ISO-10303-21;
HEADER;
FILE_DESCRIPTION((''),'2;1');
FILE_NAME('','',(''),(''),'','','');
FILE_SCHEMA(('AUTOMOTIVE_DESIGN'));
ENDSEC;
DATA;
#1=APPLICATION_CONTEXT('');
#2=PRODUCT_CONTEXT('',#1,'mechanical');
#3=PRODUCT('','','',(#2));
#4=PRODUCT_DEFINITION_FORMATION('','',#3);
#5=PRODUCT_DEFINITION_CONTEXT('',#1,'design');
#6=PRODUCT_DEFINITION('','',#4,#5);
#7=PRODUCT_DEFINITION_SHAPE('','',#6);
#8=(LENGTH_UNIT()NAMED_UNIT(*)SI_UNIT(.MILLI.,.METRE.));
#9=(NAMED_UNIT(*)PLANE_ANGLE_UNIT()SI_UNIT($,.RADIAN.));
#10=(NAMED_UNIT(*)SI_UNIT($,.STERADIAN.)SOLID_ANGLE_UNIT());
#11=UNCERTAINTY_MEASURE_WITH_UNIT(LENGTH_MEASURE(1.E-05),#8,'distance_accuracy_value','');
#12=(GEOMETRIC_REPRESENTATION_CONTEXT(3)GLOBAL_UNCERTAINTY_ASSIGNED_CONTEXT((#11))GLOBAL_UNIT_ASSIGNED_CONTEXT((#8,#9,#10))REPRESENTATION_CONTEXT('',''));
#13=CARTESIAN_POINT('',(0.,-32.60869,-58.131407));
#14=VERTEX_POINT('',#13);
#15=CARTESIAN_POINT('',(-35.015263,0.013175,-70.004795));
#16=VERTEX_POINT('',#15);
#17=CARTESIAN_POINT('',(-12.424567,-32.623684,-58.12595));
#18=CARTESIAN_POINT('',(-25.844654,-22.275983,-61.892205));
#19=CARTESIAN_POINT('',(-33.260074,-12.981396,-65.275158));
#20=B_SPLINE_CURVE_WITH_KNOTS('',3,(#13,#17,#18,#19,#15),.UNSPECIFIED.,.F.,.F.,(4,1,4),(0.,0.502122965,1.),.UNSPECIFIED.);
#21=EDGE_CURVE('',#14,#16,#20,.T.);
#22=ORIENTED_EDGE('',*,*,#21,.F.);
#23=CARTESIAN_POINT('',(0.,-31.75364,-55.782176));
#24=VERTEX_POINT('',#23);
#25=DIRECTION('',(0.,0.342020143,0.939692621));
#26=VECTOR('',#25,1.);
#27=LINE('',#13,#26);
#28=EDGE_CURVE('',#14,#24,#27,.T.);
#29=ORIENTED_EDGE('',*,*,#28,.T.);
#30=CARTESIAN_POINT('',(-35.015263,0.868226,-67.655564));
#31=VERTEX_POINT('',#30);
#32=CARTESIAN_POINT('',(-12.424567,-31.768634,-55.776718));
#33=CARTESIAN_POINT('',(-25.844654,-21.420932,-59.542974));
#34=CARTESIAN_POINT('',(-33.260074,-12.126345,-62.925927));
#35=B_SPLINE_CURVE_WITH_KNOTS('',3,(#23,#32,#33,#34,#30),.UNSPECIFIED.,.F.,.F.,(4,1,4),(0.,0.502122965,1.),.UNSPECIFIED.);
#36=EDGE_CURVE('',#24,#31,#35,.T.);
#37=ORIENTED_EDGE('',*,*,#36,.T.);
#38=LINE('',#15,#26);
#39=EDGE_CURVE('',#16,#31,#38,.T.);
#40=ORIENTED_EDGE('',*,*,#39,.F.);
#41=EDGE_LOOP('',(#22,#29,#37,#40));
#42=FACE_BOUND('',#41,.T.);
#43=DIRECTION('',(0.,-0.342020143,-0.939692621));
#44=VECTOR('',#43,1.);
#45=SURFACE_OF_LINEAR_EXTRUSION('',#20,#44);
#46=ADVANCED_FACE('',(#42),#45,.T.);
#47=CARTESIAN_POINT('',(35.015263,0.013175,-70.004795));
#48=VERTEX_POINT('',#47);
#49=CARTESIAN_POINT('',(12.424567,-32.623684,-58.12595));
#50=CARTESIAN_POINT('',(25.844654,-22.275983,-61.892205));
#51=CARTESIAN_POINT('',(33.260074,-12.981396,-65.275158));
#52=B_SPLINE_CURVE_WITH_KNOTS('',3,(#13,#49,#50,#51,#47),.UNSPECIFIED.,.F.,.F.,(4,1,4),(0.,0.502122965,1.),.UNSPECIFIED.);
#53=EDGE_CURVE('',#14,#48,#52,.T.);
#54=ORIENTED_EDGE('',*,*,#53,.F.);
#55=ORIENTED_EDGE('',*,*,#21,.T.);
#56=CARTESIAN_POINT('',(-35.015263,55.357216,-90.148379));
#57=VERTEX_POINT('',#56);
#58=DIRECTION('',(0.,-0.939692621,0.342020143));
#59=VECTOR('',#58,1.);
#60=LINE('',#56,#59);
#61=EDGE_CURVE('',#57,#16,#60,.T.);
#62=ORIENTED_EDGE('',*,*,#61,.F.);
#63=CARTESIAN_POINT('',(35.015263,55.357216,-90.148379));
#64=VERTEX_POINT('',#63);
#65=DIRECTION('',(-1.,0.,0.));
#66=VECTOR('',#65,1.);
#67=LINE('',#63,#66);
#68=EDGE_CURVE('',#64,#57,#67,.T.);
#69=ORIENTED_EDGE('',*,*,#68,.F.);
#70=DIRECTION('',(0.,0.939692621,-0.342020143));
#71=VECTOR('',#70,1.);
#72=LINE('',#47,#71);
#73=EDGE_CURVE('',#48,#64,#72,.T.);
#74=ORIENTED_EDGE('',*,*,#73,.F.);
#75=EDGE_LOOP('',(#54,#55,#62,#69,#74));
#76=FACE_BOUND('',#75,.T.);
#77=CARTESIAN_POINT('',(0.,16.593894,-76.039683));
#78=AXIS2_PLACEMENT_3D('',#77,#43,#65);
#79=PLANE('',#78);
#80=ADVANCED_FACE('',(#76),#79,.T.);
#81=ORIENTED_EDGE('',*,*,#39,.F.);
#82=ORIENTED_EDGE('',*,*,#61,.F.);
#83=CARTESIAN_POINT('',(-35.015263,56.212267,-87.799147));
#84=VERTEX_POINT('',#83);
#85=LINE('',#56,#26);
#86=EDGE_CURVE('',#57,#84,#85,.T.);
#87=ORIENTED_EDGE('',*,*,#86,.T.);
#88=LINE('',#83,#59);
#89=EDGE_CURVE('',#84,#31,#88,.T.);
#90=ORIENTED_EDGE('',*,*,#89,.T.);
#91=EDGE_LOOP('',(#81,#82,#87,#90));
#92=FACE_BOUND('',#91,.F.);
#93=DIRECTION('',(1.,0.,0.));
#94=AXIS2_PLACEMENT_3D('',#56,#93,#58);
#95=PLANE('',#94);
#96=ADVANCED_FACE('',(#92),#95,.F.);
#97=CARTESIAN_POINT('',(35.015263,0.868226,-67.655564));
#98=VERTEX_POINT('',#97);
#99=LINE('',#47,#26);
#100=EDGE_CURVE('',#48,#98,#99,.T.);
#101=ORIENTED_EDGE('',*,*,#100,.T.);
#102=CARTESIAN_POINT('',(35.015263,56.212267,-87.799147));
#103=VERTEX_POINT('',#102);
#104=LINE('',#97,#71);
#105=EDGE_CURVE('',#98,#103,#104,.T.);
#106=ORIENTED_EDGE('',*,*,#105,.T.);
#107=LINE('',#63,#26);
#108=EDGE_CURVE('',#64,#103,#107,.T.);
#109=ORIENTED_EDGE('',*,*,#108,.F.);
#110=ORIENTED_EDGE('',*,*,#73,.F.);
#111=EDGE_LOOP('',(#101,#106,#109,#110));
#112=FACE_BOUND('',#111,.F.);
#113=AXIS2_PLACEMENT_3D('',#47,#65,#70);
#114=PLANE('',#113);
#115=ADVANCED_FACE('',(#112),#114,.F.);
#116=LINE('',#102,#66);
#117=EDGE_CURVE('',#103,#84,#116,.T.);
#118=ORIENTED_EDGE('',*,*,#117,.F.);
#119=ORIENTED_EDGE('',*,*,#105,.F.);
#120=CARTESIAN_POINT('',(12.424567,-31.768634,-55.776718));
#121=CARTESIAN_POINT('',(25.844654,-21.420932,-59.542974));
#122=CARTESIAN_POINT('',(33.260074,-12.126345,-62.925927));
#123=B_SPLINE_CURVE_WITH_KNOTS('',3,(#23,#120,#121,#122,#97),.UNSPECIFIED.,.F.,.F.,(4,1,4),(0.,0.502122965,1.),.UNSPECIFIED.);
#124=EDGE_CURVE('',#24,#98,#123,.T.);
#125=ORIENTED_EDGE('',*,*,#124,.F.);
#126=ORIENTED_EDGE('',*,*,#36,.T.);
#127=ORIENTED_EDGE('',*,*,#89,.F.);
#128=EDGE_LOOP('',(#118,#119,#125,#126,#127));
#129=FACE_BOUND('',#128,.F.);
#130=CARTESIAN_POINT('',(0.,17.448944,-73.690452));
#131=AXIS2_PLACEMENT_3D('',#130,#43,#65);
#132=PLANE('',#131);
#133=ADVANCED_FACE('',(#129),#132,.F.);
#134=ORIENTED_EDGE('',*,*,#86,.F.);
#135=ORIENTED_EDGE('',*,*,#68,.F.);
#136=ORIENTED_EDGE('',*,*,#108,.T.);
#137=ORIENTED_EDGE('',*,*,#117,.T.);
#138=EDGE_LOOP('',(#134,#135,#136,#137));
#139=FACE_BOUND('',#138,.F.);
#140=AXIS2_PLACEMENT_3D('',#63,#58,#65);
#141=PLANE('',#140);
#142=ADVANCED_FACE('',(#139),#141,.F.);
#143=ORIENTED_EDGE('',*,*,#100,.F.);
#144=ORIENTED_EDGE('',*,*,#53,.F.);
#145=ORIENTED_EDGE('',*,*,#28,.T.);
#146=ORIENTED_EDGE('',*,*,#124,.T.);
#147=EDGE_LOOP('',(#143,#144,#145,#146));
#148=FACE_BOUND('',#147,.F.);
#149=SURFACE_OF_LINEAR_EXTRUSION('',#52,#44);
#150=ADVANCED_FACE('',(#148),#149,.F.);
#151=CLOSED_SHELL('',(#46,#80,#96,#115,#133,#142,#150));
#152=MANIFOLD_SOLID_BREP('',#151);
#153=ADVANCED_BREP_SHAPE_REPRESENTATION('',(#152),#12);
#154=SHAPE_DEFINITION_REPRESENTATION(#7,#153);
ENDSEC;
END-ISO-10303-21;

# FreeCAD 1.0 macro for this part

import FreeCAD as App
import Part
import Sketcher

V = App.Vector

doc = App.newDocument("Part")
params = doc.addObject("Spreadsheet::Sheet", "Params")
for row, (alias, value) in enumerate([
    ("pad1_length", "2.5 mm"),
], start=1):
    params.set(f"A{row}", alias)
    params.set(f"B{row}", "=" + value)
    params.setAlias(f"B{row}", alias)

body = doc.addObject("PartDesign::Body", "Body")

# Sketch on an angled plane
sketch1 = body.newObject("Sketcher::SketchObject", "Sketch")
sketch1.Placement = App.Placement(V(0, -22.497566, -61.811556), App.Rotation(V(1, 0, 0), V(0, 0.939692621, -0.342020143), V(0, 0.342020143, 0.939692621), "ZXY"))
sketch1.addGeometry([
    Part.BSplineCurve([V(0, -10.760034, 0), V(-12.424567, -10.77599, 0), V(-25.844654, 0.235804, 0), V(-33.260074, 10.126897, 0), V(-35.015263, 23.955431, 0)], [4, 1, 4], [0, 0.502122965, 1], False, 3, [1, 1, 1, 1, 1], False),  # 0
    Part.BSplineCurve([V(0, -10.760034, 0), V(12.424567, -10.77599, 0), V(25.844654, 0.235804, 0), V(33.260074, 10.126897, 0), V(35.015263, 23.955431, 0)], [4, 1, 4], [0, 0.502122965, 1], False, 3, [1, 1, 1, 1, 1], False),  # 1
    Part.LineSegment(V(35.015263, 23.955431, 0), V(35.015263, 82.851329, 0)),  # 2
    Part.LineSegment(V(35.015263, 82.851329, 0), V(-35.015263, 82.851329, 0)),  # 3
    Part.LineSegment(V(-35.015263, 82.851329, 0), V(-35.015263, 23.955431, 0)),  # 4
], False)
sketch1.addConstraint([
    Sketcher.Constraint("Block", 0),
    Sketcher.Constraint("Block", 1),
    Sketcher.Constraint("Coincident", 1, 2, 2, 1),
    Sketcher.Constraint("Coincident", 2, 2, 3, 1),
    Sketcher.Constraint("Coincident", 3, 2, 4, 1),
    Sketcher.Constraint("Coincident", 4, 2, 0, 2),
    Sketcher.Constraint("Vertical", 2),
    Sketcher.Constraint("Horizontal", 3),
    Sketcher.Constraint("Vertical", 4),
    Sketcher.Constraint("DistanceY", 2, 1, 2, 2, 58.895898),
])
pad1 = body.newObject("PartDesign::Pad", "Pad")
pad1.Profile = sketch1
pad1.setExpression("Length", "Params.pad1_length")

doc.recompute()
